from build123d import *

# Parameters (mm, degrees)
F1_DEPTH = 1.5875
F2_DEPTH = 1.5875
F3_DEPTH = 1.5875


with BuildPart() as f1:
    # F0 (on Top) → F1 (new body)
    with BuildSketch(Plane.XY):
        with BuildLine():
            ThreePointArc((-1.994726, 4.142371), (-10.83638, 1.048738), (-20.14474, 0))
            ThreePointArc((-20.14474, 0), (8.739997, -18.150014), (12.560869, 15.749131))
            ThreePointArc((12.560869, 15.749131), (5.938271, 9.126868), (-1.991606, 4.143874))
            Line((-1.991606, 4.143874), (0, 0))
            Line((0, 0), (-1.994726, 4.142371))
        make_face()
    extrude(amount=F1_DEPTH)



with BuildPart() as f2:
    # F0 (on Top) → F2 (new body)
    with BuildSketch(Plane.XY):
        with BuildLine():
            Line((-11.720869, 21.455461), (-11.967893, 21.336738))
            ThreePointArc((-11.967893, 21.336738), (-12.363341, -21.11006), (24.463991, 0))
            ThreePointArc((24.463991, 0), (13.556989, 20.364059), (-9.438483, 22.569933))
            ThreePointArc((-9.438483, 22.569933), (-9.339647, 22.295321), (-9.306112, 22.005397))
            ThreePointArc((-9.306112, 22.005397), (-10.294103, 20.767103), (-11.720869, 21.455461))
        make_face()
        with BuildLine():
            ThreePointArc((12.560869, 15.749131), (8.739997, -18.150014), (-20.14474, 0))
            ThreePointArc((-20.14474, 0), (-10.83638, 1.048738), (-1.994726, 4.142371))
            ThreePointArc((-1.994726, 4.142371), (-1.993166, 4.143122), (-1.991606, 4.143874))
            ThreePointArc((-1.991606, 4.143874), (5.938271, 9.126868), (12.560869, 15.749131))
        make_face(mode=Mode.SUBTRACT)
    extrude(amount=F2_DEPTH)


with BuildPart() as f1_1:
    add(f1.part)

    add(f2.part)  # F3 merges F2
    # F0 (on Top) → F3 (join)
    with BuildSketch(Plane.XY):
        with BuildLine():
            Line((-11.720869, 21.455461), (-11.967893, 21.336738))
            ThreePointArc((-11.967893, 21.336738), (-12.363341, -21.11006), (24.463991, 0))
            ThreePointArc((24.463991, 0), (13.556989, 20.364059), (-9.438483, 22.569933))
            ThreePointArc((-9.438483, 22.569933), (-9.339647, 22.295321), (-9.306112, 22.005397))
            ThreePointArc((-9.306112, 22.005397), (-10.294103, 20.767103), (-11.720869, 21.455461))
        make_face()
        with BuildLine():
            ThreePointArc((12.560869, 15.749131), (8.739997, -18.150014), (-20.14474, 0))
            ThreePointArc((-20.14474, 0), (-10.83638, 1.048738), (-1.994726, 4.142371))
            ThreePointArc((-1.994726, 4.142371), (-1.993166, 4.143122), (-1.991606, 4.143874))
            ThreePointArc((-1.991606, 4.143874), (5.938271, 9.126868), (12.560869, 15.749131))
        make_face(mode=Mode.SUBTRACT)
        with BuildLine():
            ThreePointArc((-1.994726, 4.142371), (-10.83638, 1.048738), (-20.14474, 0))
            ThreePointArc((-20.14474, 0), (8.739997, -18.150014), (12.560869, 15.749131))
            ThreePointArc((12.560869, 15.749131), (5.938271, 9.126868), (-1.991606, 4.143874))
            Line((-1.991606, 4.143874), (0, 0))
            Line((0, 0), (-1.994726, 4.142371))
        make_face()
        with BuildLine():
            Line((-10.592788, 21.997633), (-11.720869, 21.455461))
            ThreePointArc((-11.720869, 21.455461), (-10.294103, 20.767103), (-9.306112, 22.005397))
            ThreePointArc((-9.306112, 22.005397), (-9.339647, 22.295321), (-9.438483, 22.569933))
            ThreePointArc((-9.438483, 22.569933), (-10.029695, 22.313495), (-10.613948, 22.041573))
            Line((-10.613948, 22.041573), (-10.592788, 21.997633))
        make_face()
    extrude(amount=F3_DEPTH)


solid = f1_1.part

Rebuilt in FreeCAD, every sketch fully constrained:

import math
import FreeCAD as App
import Part
import Sketcher
from FreeCAD import Vector
Q = App.Units.Quantity

doc = App.newDocument("Part")
body = doc.addObject("PartDesign::Body", "Body")

# Sketch on XY plane
sketch1 = doc.addObject("Sketcher::SketchObject", "Sketch")
body.addObject(sketch1)
sketch1.AttachmentSupport = (doc.XY_Plane, [""])
sketch1.MapMode = "FlatFace"
sketch1.addGeometry(Part.ArcOfCircle(Part.Circle(Vector(-20.1, 41.8, 0), Vector(0, 0, 1), 41.8), math.radians(-90), math.radians(-64)), False)
sketch1.addGeometry(Part.ArcOfCircle(Part.Circle(Vector(0, 0, 0), Vector(0, 0, 1), 20.1), math.radians(-180), math.radians(51)), False)
sketch1.addGeometry(Part.ArcOfCircle(Part.Circle(Vector(-20.1, 41.8, 0), Vector(0, 0, 1), 41.8), math.radians(-64), math.radians(-39)), False)
sketch1.addGeometry(Part.LineSegment(Vector(-2, 4.1, 0), Vector(0, 0, 0)), False)
sketch1.addGeometry(Part.LineSegment(Vector(0, 0, 0), Vector(-2, 4.1, 0)), False)
sketch1.addConstraint(Sketcher.Constraint("Coincident", 0, 1, 1, 1))
sketch1.addConstraint(Sketcher.Constraint("Coincident", 1, 2, 2, 2))
sketch1.addConstraint(Sketcher.Constraint("Coincident", 2, 1, 3, 1))
sketch1.addConstraint(Sketcher.Constraint("Coincident", 3, 2, 4, 1))
sketch1.addConstraint(Sketcher.Constraint("Coincident", 4, 2, 0, 2))
sketch1.addConstraint(Sketcher.Constraint("Coincident", 1, 3, -1, 1))
sketch1.addConstraint(Sketcher.Constraint("Coincident", 3, 2, -1, 1))
sketch1.addConstraint(Sketcher.Constraint("PointOnObject", 0, 1, -1))
sketch1.addConstraint(Sketcher.Constraint("Equal", 3, 4))
sketch1.addConstraint(Sketcher.Constraint("Radius", 1, Q("0.7931 in")))
sketch1.addConstraint(Sketcher.Constraint("Radius", 0, Q("41.833789 mm")))
sketch1.addConstraint(Sketcher.Constraint("DistanceX", 0, 3, -1, 1, Q("0.7930999 in")))
sketch1.addConstraint(Sketcher.Constraint("Radius", 2, Q("41.833773 mm")))
sketch1.addConstraint(Sketcher.Constraint("DistanceY", 2, 1, 1, 2, Q("0.4568999 in")))
sketch1.addConstraint(Sketcher.Constraint("DistanceY", -1, 1, 2, 3, Q("41.833779 mm")))
sketch1.addConstraint(Sketcher.Constraint("DistanceY", -1, 1, 4, 2, Q("4.142371 mm")))
pad1 = doc.addObject("PartDesign::Pad", "Pad")
body.addObject(pad1)
pad1.Profile = sketch1
pad1.Length = Q("0.0625 in")
body2 = doc.addObject("PartDesign::Body", "Body001")

# Sketch on XY plane
sketch2 = doc.addObject("Sketcher::SketchObject", "Sketch001")
body2.addObject(sketch2)
sketch2.AttachmentSupport = (doc.getObject("XY_Plane001"), [""])
sketch2.MapMode = "FlatFace"
sketch2.addGeometry(Part.LineSegment(Vector(-11.7209, 21.4555, 0), Vector(-11.9679, 21.3367, 0)), False)
sketch2.addGeometry(Part.ArcOfCircle(Part.Circle(Vector(0, 0, 0), Vector(0, 0, 1), 24.464), math.radians(119), math.radians(360)), False)
sketch2.addGeometry(Part.ArcOfCircle(Part.Circle(Vector(0, 0, 0), Vector(0, 0, 1), 24.464), math.radians(0), math.radians(113)), False)
sketch2.addGeometry(Part.ArcOfCircle(Part.Circle(Vector(-10.5761, 22.0054, 0), Vector(0, 0, 1), 1.27), math.radians(0), math.radians(26)), False)
sketch2.addGeometry(Part.ArcOfCircle(Part.Circle(Vector(-10.5761, 22.0054, 0), Vector(0, 0, 1), 1.27), math.radians(-154), math.radians(0)), False)
sketch2.addGeometry(Part.ArcOfCircle(Part.Circle(Vector(-20.1447, 41.8338, 0), Vector(0, 0, 1), 41.8338), math.radians(-64), math.radians(-39)), False)
sketch2.addGeometry(Part.ArcOfCircle(Part.Circle(Vector(0, 0, 0), Vector(0, 0, 1), 20.1447), math.radians(-180), math.radians(51)), False)
sketch2.addGeometry(Part.ArcOfCircle(Part.Circle(Vector(-20.1447, 41.8338, 0), Vector(0, 0, 1), 41.8338), math.radians(-90), math.radians(-64)), False)
sketch2.addGeometry(Part.ArcOfCircle(Part.Circle(Vector(-3.4376, 7.1415, 0), Vector(0, 0, 1), 3.3281), math.radians(-64.31), math.radians(-64.25)), False)
sketch2.addConstraint(Sketcher.Constraint("Coincident", 0, 2, 1, 1))
sketch2.addConstraint(Sketcher.Constraint("Tangent", 1, 2, 2, 1))
sketch2.addConstraint(Sketcher.Constraint("Coincident", 2, 2, 3, 2))
sketch2.addConstraint(Sketcher.Constraint("Coincident", 3, 1, 4, 2))
sketch2.addConstraint(Sketcher.Constraint("Coincident", 4, 1, 0, 1))
sketch2.addConstraint(Sketcher.Constraint("Coincident", 5, 2, 6, 2))
sketch2.addConstraint(Sketcher.Constraint("Coincident", 6, 1, 7, 1))
sketch2.addConstraint(Sketcher.Constraint("Coincident", 7, 2, 8, 1))
sketch2.addConstraint(Sketcher.Constraint("Coincident", 8, 2, 5, 1))
sketch2.addConstraint(Sketcher.Constraint("Coincident", 1, 3, -1, 1))
sketch2.addConstraint(Sketcher.Constraint("Coincident", 6, 3, -1, 1))
sketch2.addConstraint(Sketcher.Constraint("Equal", 1, 2))
sketch2.addConstraint(Sketcher.Constraint("PointOnObject", 1, 2, -1))
sketch2.addConstraint(Sketcher.Constraint("PointOnObject", 6, 1, -1))
sketch2.addConstraint(Sketcher.Constraint("Horizontal", 4, 3, 3, 1))
sketch2.addConstraint(Sketcher.Constraint("Radius", 4, Q("0.05 in")))
sketch2.addConstraint(Sketcher.Constraint("Radius", 6, Q("0.7931 in")))
sketch2.addConstraint(Sketcher.Constraint("Radius", 1, Q("24.463991 mm")))
sketch2.addConstraint(Sketcher.Constraint("Radius", 3, Q("1.269981 mm")))
sketch2.addConstraint(Sketcher.Constraint("Radius", 7, Q("41.833789 mm")))
sketch2.addConstraint(Sketcher.Constraint("DistanceX", 7, 3, -1, 1, Q("0.7930999 in")))
sketch2.addConstraint(Sketcher.Constraint("Radius", 5, Q("41.833773 mm")))
sketch2.addConstraint(Sketcher.Constraint("Radius", 8, Q("3.328123 mm")))
sketch2.addConstraint(Sketcher.Constraint("DistanceY", -1, 1, 3, 3, Q("22.005402 mm")))
sketch2.addConstraint(Sketcher.Constraint("DistanceX", 0, 2, 3, 3, Q("1.3918 mm")))
sketch2.addConstraint(Sketcher.Constraint("DistanceY", 8, 2, 8, 3, Q("2.997601 mm")))
sketch2.addConstraint(Sketcher.Constraint("DistanceX", 4, 3, -1, 1, Q("10.576111 mm")))
sketch2.addConstraint(Sketcher.Constraint("DistanceY", -1, 1, 5, 3, Q("41.833779 mm")))
sketch2.addConstraint(Sketcher.Constraint("DistanceX", 4, 1, -1, 1, Q("11.720869 mm")))
sketch2.addConstraint(Sketcher.Constraint("DistanceY", -1, 1, 4, 1, Q("21.455461 mm")))
sketch2.addConstraint(Sketcher.Constraint("DistanceY", -1, 1, 7, 2, Q("4.142371 mm")))
sketch2.addConstraint(Sketcher.Constraint("DistanceX", 3, 3, 8, 3, Q("7.138529 mm")))
pad2 = doc.addObject("PartDesign::Pad", "Pad001")
body2.addObject(pad2)
pad2.Profile = sketch2
pad2.Length = Q("0.0625 in")
doc.recompute()

boolean = doc.addObject("PartDesign::Boolean", "Boolean")
body.addObject(boolean)
boolean.Type = "Fuse"
boolean.addObjects([body2])

# Sketch on XY plane
sketch3 = doc.addObject("Sketcher::SketchObject", "Sketch002")
body.addObject(sketch3)
sketch3.AttachmentSupport = (doc.XY_Plane, [""])
sketch3.MapMode = "FlatFace"
sketch3.addGeometry(Part.LineSegment(Vector(-11.720869, 21.455461, 0), Vector(-11.967893, 21.336738, 0)), False)
sketch3.addGeometry(Part.ArcOfCircle(Part.Circle(Vector(0, 0, 0), Vector(0, 0, 1), 24.463991), math.radians(119.288306), math.radians(360)), False)
sketch3.addGeometry(Part.ArcOfCircle(Part.Circle(Vector(0, 0, 0), Vector(0, 0, 1), 24.463991), math.radians(0), math.radians(112.694114)), False)
sketch3.addGeometry(Part.ArcOfCircle(Part.Circle(Vector(-0.000148, 0.000334, 0), Vector(0, 0, 1), 24.463626), math.radians(112.694095), math.radians(115.712805)), False)
sketch3.addGeometry(Part.LineSegment(Vector(-10.613948, 22.041573, 0), Vector(-10.592788, 21.997633, 0)), False)
sketch3.addGeometry(Part.LineSegment(Vector(-10.592788, 21.997633, 0), Vector(-11.720869, 21.455461, 0)), False)
sketch3.addGeometry(Part.ArcOfCircle(Part.Circle(Vector(-3.437564, 7.141475, 0), Vector(0, 0, 1), 3.328123), math.radians(-64.308262), math.radians(-64.248642)), False)
sketch3.addGeometry(Part.LineSegment(Vector(-1.991606, 4.143874, 0), Vector(0, 0, 0)), False)
sketch3.addGeometry(Part.LineSegment(Vector(0, 0, 0), Vector(-1.994726, 4.142371, 0)), False)
sketch3.addConstraint(Sketcher.Constraint("Coincident", 0, 2, 1, 1))
sketch3.addConstraint(Sketcher.Constraint("Coincident", 1, 2, 2, 1))
sketch3.addConstraint(Sketcher.Constraint("Coincident", 2, 2, 3, 1))
sketch3.addConstraint(Sketcher.Constraint("Coincident", 3, 2, 4, 1))
sketch3.addConstraint(Sketcher.Constraint("Coincident", 4, 2, 5, 1))
sketch3.addConstraint(Sketcher.Constraint("Coincident", 5, 2, 0, 1))
sketch3.addConstraint(Sketcher.Constraint("Coincident", 6, 2, 7, 1))
sketch3.addConstraint(Sketcher.Constraint("Coincident", 7, 2, 8, 1))
sketch3.addConstraint(Sketcher.Constraint("Coincident", 8, 2, 6, 1))
sketch3.addConstraint(Sketcher.Constraint("Coincident", 1, 3, -1, 1))
sketch3.addConstraint(Sketcher.Constraint("Coincident", 2, 3, -1, 1))
sketch3.addConstraint(Sketcher.Constraint("Coincident", 7, 2, -1, 1))
sketch3.addConstraint(Sketcher.Constraint("PointOnObject", 1, 2, -1))
sketch3.addConstraint(Sketcher.Constraint("Radius", 1, Q("24.463991 mm")))
sketch3.addConstraint(Sketcher.Constraint("Radius", 3, Q("24.463626 mm")))
sketch3.addConstraint(Sketcher.Constraint("Radius", 6, Q("3.328123 mm")))
sketch3.addConstraint(Sketcher.Constraint("DistanceY", 3, 3, 2, 2, Q("22.569599 mm")))
sketch3.addConstraint(Sketcher.Constraint("DistanceY", 6, 3, 3, 2, Q("14.900098 mm")))
sketch3.addConstraint(Sketcher.Constraint("DistanceX", 3, 2, 3, 3, Q("10.6138 mm")))
sketch3.addConstraint(Sketcher.Constraint("DistanceY", 4, 2, 2, 2, Q("0.5723 mm")))
sketch3.addConstraint(Sketcher.Constraint("DistanceY", 6, 2, 6, 3, Q("2.997601 mm")))
sketch3.addConstraint(Sketcher.Constraint("Distance", 4, Q("0.04877 mm")))
sketch3.addConstraint(Sketcher.Constraint("Distance", 7, Q("4.597628 mm")))
sketch3.addConstraint(Sketcher.Constraint("DistanceX", 3, 3, -1, 1, Q("0.000148 mm")))
sketch3.addConstraint(Sketcher.Constraint("DistanceY", -1, 1, 0, 2, Q("21.336738 mm")))
sketch3.addConstraint(Sketcher.Constraint("DistanceX", 5, 2, -1, 1, Q("11.720869 mm")))
sketch3.addConstraint(Sketcher.Constraint("DistanceY", -1, 1, 5, 2, Q("21.455461 mm")))
sketch3.addConstraint(Sketcher.Constraint("DistanceY", -1, 1, 8, 2, Q("4.142371 mm")))
pad3 = doc.addObject("PartDesign::Pad", "Pad002")
body.addObject(pad3)
pad3.Profile = sketch3
pad3.Length = Q("0.0625 in")

doc.recompute()
